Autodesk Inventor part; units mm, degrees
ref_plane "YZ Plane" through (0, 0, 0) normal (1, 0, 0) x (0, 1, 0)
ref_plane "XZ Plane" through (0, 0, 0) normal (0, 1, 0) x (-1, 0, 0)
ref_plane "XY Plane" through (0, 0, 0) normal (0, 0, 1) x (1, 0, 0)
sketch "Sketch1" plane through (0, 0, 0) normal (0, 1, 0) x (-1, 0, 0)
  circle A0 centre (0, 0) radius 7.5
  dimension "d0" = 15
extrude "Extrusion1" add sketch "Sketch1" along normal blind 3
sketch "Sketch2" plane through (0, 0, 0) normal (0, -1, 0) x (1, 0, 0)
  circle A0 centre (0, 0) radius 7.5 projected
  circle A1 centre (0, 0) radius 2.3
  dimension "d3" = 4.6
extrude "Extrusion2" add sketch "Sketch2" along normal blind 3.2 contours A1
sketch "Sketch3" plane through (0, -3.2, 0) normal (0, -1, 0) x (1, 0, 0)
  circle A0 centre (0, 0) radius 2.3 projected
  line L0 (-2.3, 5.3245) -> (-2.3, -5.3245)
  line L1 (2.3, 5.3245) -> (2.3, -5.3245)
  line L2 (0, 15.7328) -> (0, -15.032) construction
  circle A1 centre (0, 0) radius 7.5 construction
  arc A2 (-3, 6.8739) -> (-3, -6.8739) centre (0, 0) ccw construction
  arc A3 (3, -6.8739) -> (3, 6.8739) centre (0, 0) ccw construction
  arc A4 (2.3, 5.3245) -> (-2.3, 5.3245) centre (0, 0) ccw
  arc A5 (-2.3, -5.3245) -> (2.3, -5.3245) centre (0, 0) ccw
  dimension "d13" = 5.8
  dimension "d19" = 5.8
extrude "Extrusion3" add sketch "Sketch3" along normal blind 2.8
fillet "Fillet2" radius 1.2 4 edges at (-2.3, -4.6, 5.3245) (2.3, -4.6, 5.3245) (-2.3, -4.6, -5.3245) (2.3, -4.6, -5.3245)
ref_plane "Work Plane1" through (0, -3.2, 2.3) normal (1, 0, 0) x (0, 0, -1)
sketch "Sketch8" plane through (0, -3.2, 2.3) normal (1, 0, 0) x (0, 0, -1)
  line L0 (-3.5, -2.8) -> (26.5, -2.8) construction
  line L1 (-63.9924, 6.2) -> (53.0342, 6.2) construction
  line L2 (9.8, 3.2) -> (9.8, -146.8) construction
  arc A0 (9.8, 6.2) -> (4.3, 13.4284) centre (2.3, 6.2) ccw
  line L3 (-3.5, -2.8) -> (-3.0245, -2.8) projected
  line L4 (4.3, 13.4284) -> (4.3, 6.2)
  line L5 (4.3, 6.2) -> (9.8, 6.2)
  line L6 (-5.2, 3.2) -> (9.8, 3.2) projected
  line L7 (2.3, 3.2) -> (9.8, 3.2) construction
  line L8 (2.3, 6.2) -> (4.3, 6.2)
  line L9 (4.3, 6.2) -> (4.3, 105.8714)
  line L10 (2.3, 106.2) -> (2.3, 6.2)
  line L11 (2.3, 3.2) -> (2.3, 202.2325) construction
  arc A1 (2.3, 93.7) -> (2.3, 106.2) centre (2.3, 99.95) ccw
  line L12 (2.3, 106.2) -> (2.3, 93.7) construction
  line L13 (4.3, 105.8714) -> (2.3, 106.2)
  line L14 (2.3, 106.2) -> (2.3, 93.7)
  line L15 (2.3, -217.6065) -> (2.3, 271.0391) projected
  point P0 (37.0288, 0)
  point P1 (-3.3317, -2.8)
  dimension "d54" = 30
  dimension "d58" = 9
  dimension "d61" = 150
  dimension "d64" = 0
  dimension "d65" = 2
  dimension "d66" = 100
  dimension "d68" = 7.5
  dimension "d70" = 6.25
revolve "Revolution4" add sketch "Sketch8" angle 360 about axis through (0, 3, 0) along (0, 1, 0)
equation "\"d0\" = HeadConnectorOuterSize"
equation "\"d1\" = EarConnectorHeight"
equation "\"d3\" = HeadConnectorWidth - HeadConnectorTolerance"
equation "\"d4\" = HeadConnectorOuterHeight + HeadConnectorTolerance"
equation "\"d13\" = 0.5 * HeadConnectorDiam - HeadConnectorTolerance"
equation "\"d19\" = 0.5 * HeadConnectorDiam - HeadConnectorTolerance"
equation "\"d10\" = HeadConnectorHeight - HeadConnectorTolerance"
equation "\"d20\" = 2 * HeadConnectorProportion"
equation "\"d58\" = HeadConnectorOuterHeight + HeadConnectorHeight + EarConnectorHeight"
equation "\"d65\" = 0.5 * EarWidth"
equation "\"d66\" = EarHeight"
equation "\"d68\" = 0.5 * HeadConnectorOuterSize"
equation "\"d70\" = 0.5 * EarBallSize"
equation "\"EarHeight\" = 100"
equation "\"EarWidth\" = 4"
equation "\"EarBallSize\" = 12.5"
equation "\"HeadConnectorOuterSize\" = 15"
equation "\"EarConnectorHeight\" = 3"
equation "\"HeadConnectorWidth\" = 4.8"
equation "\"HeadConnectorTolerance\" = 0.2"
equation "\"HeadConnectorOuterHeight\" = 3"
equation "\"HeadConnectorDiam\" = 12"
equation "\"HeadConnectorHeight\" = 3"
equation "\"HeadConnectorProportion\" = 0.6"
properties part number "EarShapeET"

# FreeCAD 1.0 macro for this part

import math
import FreeCAD as App
import Part
import Sketcher
from FreeCAD import Vector
Q = App.Units.Quantity


def edges_at(feature, points):
    """Names of the edges that pass closest to the given points."""
    edges = feature.Shape.Edges
    near = lambda p: min(range(len(edges)), key=lambda i: edges[i].distToShape(Part.Vertex(*p))[0])
    return sorted({f"Edge{near(p) + 1}" for p in points})

doc = App.newDocument("Part")
body = doc.addObject("PartDesign::Body", "Body")

sketch1 = body.newObject("Sketcher::SketchObject", "Sketch")
sketch1.AttachmentSupport = (doc.getObject("XZ_Plane"), [""])
sketch1.MapMode = "FlatFace"
sketch1.addGeometry(Part.Circle(Vector(0, 0, 0), Vector(0, 0, 1), 7.5), False)
sketch1.addConstraint(Sketcher.Constraint("Coincident", 0, 3, -1, 1))
sketch1.addConstraint(Sketcher.Constraint("Diameter", 0, Q("15 mm")))
pad1 = body.newObject("PartDesign::Pad", "Pad")
pad1.Profile = sketch1
pad1.Length = 3
pad1.Reversed = True

sketch2 = body.newObject("Sketcher::SketchObject", "Sketch001")
sketch2.AttachmentSupport = (doc.getObject("XZ_Plane"), [""])
sketch2.MapMode = "FlatFace"
sketch2.addGeometry(Part.Circle(Vector(0, 0, 0), Vector(0, 0, 1), 2.3), False)
sketch2.addConstraint(Sketcher.Constraint("Coincident", 0, 3, -1, 1))
sketch2.addConstraint(Sketcher.Constraint("Diameter", 0, Q("4.6 mm")))
pad2 = body.newObject("PartDesign::Pad", "Pad001")
pad2.Profile = sketch2
pad2.Length = 3.2

sketch3 = body.newObject("Sketcher::SketchObject", "Sketch002")
sketch3.AttachmentSupport = (doc.getObject("XZ_Plane"), [""])
sketch3.MapMode = "FlatFace"
sketch3.AttachmentOffset = App.Placement(Vector(0, 0, 3.2), App.Rotation())
sketch3.addGeometry(Part.LineSegment(Vector(2.3, -5.3245, 0), Vector(2.3, 5.3245, 0)), False)
sketch3.addGeometry(Part.ArcOfCircle(Part.Circle(Vector(0, 0, 0), Vector(0, 0, 1), 5.800026), math.radians(66.637324), math.radians(113.362676)), False)
sketch3.addGeometry(Part.LineSegment(Vector(-2.3, 5.3245, 0), Vector(-2.3, -5.3245, 0)), False)
sketch3.addGeometry(Part.ArcOfCircle(Part.Circle(Vector(0, 0, 0), Vector(0, 0, 1), 5.800026), math.radians(-113.362676), math.radians(-66.637324)), False)
sketch3.addConstraint(Sketcher.Constraint("Coincident", 0, 2, 1, 1))
sketch3.addConstraint(Sketcher.Constraint("Coincident", 1, 2, 2, 1))
sketch3.addConstraint(Sketcher.Constraint("Coincident", 2, 2, 3, 1))
sketch3.addConstraint(Sketcher.Constraint("Coincident", 3, 2, 0, 1))
sketch3.addConstraint(Sketcher.Constraint("Vertical", 0))
sketch3.addConstraint(Sketcher.Constraint("Vertical", 2))
sketch3.addConstraint(Sketcher.Constraint("Coincident", 1, 3, -1, 1))
sketch3.addConstraint(Sketcher.Constraint("Coincident", 3, 3, -1, 1))
sketch3.addConstraint(Sketcher.Constraint("Equal", 1, 3))
sketch3.addConstraint(Sketcher.Constraint("Horizontal", 0, 2, 1, 2))
sketch3.addConstraint(Sketcher.Constraint("Radius", 1, Q("5.8 mm")))
sketch3.addConstraint(Sketcher.Constraint("DistanceX", -1, 1, 0, 2, Q("2.3 mm")))
pad3 = body.newObject("PartDesign::Pad", "Pad002")
pad3.Profile = sketch3
pad3.Length = 2.8
doc.recompute()

fillet = body.newObject("PartDesign::Fillet", "Fillet")
fillet.Base = (pad3, edges_at(pad3, [
    (-2.3, -4.6, 5.324),
    (2.3, -4.6, 5.324),
    (-2.3, -4.6, -5.324),
    (2.3, -4.6, -5.324),
]))
fillet.Radius = 1.2

sketch4 = body.newObject("Sketcher::SketchObject", "Sketch003")
sketch4.AttachmentSupport = (doc.getObject("YZ_Plane"), [""])
sketch4.MapMode = "FlatFace"
sketch4.addGeometry(Part.ArcOfCircle(Part.Circle(Vector(3, 0, 0), Vector(0, 0, 1), 7.5), math.radians(-90), math.radians(-15.466043)), False)
sketch4.addGeometry(Part.LineSegment(Vector(10.2284, -2, 0), Vector(90.82864, -2, 0)), False)
sketch4.addGeometry(Part.ArcOfCircle(Part.Circle(Vector(96.75, 0, 0), Vector(0, 0, 1), 6.25), math.radians(-161.337075), math.radians(0)), False)
sketch4.addGeometry(Part.LineSegment(Vector(103, 0, 0), Vector(3, 0, 0)), False)
sketch4.addGeometry(Part.LineSegment(Vector(3, 0, 0), Vector(3, -7.5, 0)), False)
sketch4.addConstraint(Sketcher.Constraint("Coincident", 0, 2, 1, 1))
sketch4.addConstraint(Sketcher.Constraint("Coincident", 1, 2, 2, 1))
sketch4.addConstraint(Sketcher.Constraint("Coincident", 2, 2, 3, 1))
sketch4.addConstraint(Sketcher.Constraint("Coincident", 3, 2, 4, 1))
sketch4.addConstraint(Sketcher.Constraint("Coincident", 4, 2, 0, 1))
sketch4.addConstraint(Sketcher.Constraint("Horizontal", 1))
sketch4.addConstraint(Sketcher.Constraint("Horizontal", 3))
sketch4.addConstraint(Sketcher.Constraint("Vertical", 4))
sketch4.addConstraint(Sketcher.Constraint("Coincident", 3, 2, 0, 3))
sketch4.addConstraint(Sketcher.Constraint("PointOnObject", 0, 3, -1))
sketch4.addConstraint(Sketcher.Constraint("PointOnObject", 2, 3, -1))
sketch4.addConstraint(Sketcher.Constraint("Radius", 0, Q("7.5 mm")))
sketch4.addConstraint(Sketcher.Constraint("DistanceX", 3, 2, 3, 1, Q("100 mm")))
sketch4.addConstraint(Sketcher.Constraint("Radius", 2, Q("6.25 mm")))
sketch4.addConstraint(Sketcher.Constraint("DistanceY", 0, 2, -1, 1, Q("2 mm")))
sketch4.addConstraint(Sketcher.Constraint("DistanceX", -1, 1, 0, 3, Q("3 mm")))
revolution = body.newObject("PartDesign::Revolution", "Revolution")
revolution.Profile = sketch4
revolution.ReferenceAxis = (sketch4, ["H_Axis"])
revolution.Angle = 360

doc.recompute()
